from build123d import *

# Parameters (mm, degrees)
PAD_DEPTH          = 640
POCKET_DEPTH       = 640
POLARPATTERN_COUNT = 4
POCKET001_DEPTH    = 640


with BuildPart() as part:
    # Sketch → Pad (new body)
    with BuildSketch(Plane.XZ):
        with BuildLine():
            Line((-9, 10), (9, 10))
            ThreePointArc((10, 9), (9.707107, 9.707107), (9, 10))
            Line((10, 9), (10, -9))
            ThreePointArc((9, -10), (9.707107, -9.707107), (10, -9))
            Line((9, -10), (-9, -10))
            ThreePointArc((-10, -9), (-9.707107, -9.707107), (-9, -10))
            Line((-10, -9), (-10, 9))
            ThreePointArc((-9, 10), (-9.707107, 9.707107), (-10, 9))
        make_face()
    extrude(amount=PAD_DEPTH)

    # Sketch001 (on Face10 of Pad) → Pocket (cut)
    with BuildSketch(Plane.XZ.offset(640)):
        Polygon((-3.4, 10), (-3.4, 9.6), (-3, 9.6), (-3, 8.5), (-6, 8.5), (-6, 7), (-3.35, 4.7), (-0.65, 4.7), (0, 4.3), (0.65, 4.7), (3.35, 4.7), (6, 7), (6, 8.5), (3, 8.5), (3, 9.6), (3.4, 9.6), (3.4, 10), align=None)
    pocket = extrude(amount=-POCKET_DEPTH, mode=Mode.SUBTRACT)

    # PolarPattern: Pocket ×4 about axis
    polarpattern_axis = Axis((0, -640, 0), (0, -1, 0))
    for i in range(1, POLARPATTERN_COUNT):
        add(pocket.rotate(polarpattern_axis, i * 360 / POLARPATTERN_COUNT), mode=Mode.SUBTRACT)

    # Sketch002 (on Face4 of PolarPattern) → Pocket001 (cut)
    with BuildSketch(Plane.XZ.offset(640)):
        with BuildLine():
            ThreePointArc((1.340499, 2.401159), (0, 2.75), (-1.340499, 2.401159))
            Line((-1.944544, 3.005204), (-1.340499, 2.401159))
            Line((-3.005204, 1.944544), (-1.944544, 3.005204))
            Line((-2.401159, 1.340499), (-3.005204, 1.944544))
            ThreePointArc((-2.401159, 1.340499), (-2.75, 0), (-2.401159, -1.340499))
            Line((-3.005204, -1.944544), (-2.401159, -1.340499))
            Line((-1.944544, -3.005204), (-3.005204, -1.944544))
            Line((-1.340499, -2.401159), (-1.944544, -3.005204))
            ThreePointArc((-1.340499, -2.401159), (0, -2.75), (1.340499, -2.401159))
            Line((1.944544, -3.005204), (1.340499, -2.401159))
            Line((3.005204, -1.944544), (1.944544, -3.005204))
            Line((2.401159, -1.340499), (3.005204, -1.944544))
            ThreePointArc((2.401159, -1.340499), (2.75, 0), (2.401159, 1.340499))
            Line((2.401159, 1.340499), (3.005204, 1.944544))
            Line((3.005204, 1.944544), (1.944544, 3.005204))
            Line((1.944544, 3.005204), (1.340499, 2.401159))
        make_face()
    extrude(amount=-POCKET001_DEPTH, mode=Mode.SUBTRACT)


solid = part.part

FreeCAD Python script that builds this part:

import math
import FreeCAD as App
import Part
import Sketcher
from FreeCAD import Vector

doc = App.newDocument("Part")
params = doc.addObject("Spreadsheet::Sheet", "Params")
for row, (alias, value) in enumerate([
    ("sketch1_radius", "0.999999 mm"),
    ("sketch1_width", "18 mm"),
    ("pad1_length", "640 mm"),
    ("sketch2_width", "3 mm"),
    ("sketch2_width2", "0.4 mm"),
    ("sketch2_width3", "2.7 mm"),
    ("sketch2_width4", "6.8 mm"),
    ("sketch2_height", "1.1 mm"),
    ("pocket1_length", "640 mm"),
    ("sketch3_length", "1.5 mm"),
    ("pocket2_length", "640 mm"),
], start=1):
    params.set(f"A{row}", alias)
    params.set(f"B{row}", "=" + value)
    params.setAlias(f"B{row}", alias)

body = doc.addObject("PartDesign::Body", "Body")

sketch1 = body.newObject("Sketcher::SketchObject", "Sketch")
sketch1.AttachmentSupport = (doc.getObject("XZ_Plane"), [""])
sketch1.MapMode = "FlatFace"
sketch1.addGeometry([
    Part.LineSegment(Vector(9, 10, 0), Vector(-9, 10, 0)),
    Part.ArcOfCircle(Part.Circle(Vector(-9.000001, 9.000001, 0), Vector(0, 0, 1), 0.999999), math.radians(89.999957), math.radians(180.000043)),
    Part.LineSegment(Vector(-10, 9, 0), Vector(-10, -9, 0)),
    Part.ArcOfCircle(Part.Circle(Vector(-9.000001, -9.000001, 0), Vector(0, 0, 1), 0.999999), math.radians(179.999957), math.radians(270.000043)),
    Part.LineSegment(Vector(-9, -10, 0), Vector(9, -10, 0)),
    Part.ArcOfCircle(Part.Circle(Vector(9.000001, -9.000001, 0), Vector(0, 0, 1), 0.999999), math.radians(-90.000043), math.radians(0.000043)),
    Part.LineSegment(Vector(10, -9, 0), Vector(10, 9, 0)),
    Part.ArcOfCircle(Part.Circle(Vector(9.000001, 9.000001, 0), Vector(0, 0, 1), 0.999999), math.radians(-0.000043), math.radians(90.000043)),
], False)
sketch1.addConstraint([
    Sketcher.Constraint("Tangent", 0, 2, 1, 1),
    Sketcher.Constraint("Tangent", 1, 2, 2, 1),
    Sketcher.Constraint("Tangent", 2, 2, 3, 1),
    Sketcher.Constraint("Tangent", 3, 2, 4, 1),
    Sketcher.Constraint("Tangent", 4, 2, 5, 1),
    Sketcher.Constraint("Tangent", 5, 2, 6, 1),
    Sketcher.Constraint("Tangent", 6, 2, 7, 1),
    Sketcher.Constraint("Tangent", 7, 2, 0, 1),
    Sketcher.Constraint("Horizontal", 0),
    Sketcher.Constraint("Vertical", 2),
    Sketcher.Constraint("Horizontal", 4),
    Sketcher.Constraint("Vertical", 6),
    Sketcher.Constraint("Equal", 1, 3),
    Sketcher.Constraint("Equal", 3, 5),
    Sketcher.Constraint("Equal", 5, 7),
    Sketcher.Constraint("Symmetric", 1, 3, 5, 3, -1, 1),
    Sketcher.Constraint("Equal", 4, 2),
    Sketcher.Constraint("Radius", 1, 0.999999),
    Sketcher.Constraint("DistanceX", 0, 2, 0, 1, 18.0),
])
sketch1.setExpression("Constraints[17]", "Params.sketch1_radius")
sketch1.setExpression("Constraints[18]", "Params.sketch1_width")
pad1 = body.newObject("PartDesign::Pad", "Pad")
pad1.Profile = sketch1
pad1.setExpression("Length", "Params.pad1_length")

sketch2 = body.newObject("Sketcher::SketchObject", "Sketch001")
sketch2.AttachmentSupport = (doc.getObject("XZ_Plane"), [""])
sketch2.MapMode = "FlatFace"
sketch2.AttachmentOffset = App.Placement(Vector(0, 0, 640), App.Rotation())
sketch2.addGeometry([
    Part.LineSegment(Vector(-3.4, 10, 0), Vector(-3.4, 9.6, 0)),
    Part.LineSegment(Vector(-3.4, 9.6, 0), Vector(-3, 9.6, 0)),
    Part.LineSegment(Vector(-3, 9.6, 0), Vector(-3, 8.5, 0)),
    Part.LineSegment(Vector(-3, 8.5, 0), Vector(-6, 8.5, 0)),
    Part.LineSegment(Vector(-6, 8.5, 0), Vector(-6, 7, 0)),
    Part.LineSegment(Vector(-6, 7, 0), Vector(-3.35, 4.7, 0)),
    Part.LineSegment(Vector(-3.35, 4.7, 0), Vector(-0.65, 4.7, 0)),
    Part.LineSegment(Vector(-0.65, 4.7, 0), Vector(0, 4.3, 0)),
    Part.LineSegment(Vector(0, 4.3, 0), Vector(0.65, 4.7, 0)),
    Part.LineSegment(Vector(0.65, 4.7, 0), Vector(3.35, 4.7, 0)),
    Part.LineSegment(Vector(3.35, 4.7, 0), Vector(6, 7, 0)),
    Part.LineSegment(Vector(6, 7, 0), Vector(6, 8.5, 0)),
    Part.LineSegment(Vector(6, 8.5, 0), Vector(3, 8.5, 0)),
    Part.LineSegment(Vector(3, 8.5, 0), Vector(3, 9.6, 0)),
    Part.LineSegment(Vector(3, 9.6, 0), Vector(3.4, 9.6, 0)),
    Part.LineSegment(Vector(3.4, 9.6, 0), Vector(3.4, 10, 0)),
    Part.LineSegment(Vector(3.4, 10, 0), Vector(-3.4, 10, 0)),
], False)
sketch2.addConstraint([
    Sketcher.Constraint("Coincident", 0, 2, 1, 1),
    Sketcher.Constraint("Coincident", 1, 2, 2, 1),
    Sketcher.Constraint("Coincident", 2, 2, 3, 1),
    Sketcher.Constraint("Coincident", 3, 2, 4, 1),
    Sketcher.Constraint("Coincident", 4, 2, 5, 1),
    Sketcher.Constraint("Coincident", 5, 2, 6, 1),
    Sketcher.Constraint("Coincident", 6, 2, 7, 1),
    Sketcher.Constraint("Coincident", 7, 2, 8, 1),
    Sketcher.Constraint("Coincident", 8, 2, 9, 1),
    Sketcher.Constraint("Coincident", 9, 2, 10, 1),
    Sketcher.Constraint("Coincident", 10, 2, 11, 1),
    Sketcher.Constraint("Coincident", 11, 2, 12, 1),
    Sketcher.Constraint("Coincident", 12, 2, 13, 1),
    Sketcher.Constraint("Coincident", 13, 2, 14, 1),
    Sketcher.Constraint("Coincident", 14, 2, 15, 1),
    Sketcher.Constraint("Coincident", 15, 2, 16, 1),
    Sketcher.Constraint("Coincident", 16, 2, 0, 1),
    Sketcher.Constraint("Vertical", 0),
    Sketcher.Constraint("Horizontal", 1),
    Sketcher.Constraint("Vertical", 2),
    Sketcher.Constraint("Horizontal", 3),
    Sketcher.Constraint("Vertical", 4),
    Sketcher.Constraint("Horizontal", 6),
    Sketcher.Constraint("Horizontal", 9),
    Sketcher.Constraint("Vertical", 11),
    Sketcher.Constraint("Horizontal", 12),
    Sketcher.Constraint("Vertical", 13),
    Sketcher.Constraint("Horizontal", 14),
    Sketcher.Constraint("Vertical", 15),
    Sketcher.Constraint("Horizontal", 16),
    Sketcher.Constraint("Symmetric", 6, 2, 8, 2, -2),
    Sketcher.Constraint("Symmetric", 4, 2, 10, 2, -2),
    Sketcher.Constraint("Symmetric", 2, 2, 12, 2, -2),
    Sketcher.Constraint("Symmetric", 0, 2, 14, 2, -2),
    Sketcher.Constraint("PointOnObject", 7, 2, -2),
    Sketcher.Constraint("Equal", 6, 9),
    Sketcher.Constraint("Equal", 14, 0),
    Sketcher.Constraint("DistanceX", 3, 2, 3, 1, 3.0),
    Sketcher.Constraint("DistanceX", 1, 1, 1, 2, 0.4),
    Sketcher.Constraint("DistanceX", 6, 1, 6, 2, 2.7),
    Sketcher.Constraint("DistanceX", 16, 2, 16, 1, 6.8),
    Sketcher.Constraint("DistanceY", 2, 2, 2, 1, 1.1),
    Sketcher.Constraint("DistanceY", 4, 2, 4, 1, 1.5),
    Sketcher.Constraint("DistanceY", -1, 1, 4, 2, 7.0),
    Sketcher.Constraint("DistanceX", 5, 2, 8, 2, 4.0),
    Sketcher.Constraint("DistanceY", -1, 1, 5, 2, 4.7),
    Sketcher.Constraint("DistanceY", -1, 1, 7, 2, 4.3),
])
sketch2.setExpression("Constraints[37]", "Params.sketch2_width")
sketch2.setExpression("Constraints[38]", "Params.sketch2_width2")
sketch2.setExpression("Constraints[39]", "Params.sketch2_width3")
sketch2.setExpression("Constraints[40]", "Params.sketch2_width4")
sketch2.setExpression("Constraints[41]", "Params.sketch2_height")
pocket1 = body.newObject("PartDesign::Pocket", "Pocket")
pocket1.Profile = sketch2
pocket1.setExpression("Length", "Params.pocket1_length")
doc.recompute()

polarpattern = body.newObject("PartDesign::PolarPattern", "PolarPattern")
polarpattern.Originals = [pocket1]
polarpattern.Axis = (doc.getObject("Y_Axis"), [""])
polarpattern.Angle = 360
polarpattern.Occurrences = 4
body.Tip = polarpattern

sketch3 = body.newObject("Sketcher::SketchObject", "Sketch002")
sketch3.AttachmentSupport = (doc.getObject("XZ_Plane"), [""])
sketch3.MapMode = "FlatFace"
sketch3.AttachmentOffset = App.Placement(Vector(0, 0, 640), App.Rotation())
sketch3.addGeometry([
    Part.ArcOfCircle(Part.Circle(Vector(0, -0.000003, 0), Vector(0, 0, 1), 2.750003), math.radians(60.826646), math.radians(119.173354)),
    Part.LineSegment(Vector(-1.340499, 2.401159, 0), Vector(-1.944544, 3.005204, 0)),
    Part.LineSegment(Vector(-1.944544, 3.005204, 0), Vector(-3.005204, 1.944544, 0)),
    Part.LineSegment(Vector(-3.005204, 1.944544, 0), Vector(-2.401159, 1.340499, 0)),
    Part.ArcOfCircle(Part.Circle(Vector(0.000003, 0, 0), Vector(0, 0, 1), 2.750003), math.radians(150.826646), math.radians(209.173354)),
    Part.LineSegment(Vector(-2.401159, -1.340499, 0), Vector(-3.005204, -1.944544, 0)),
    Part.LineSegment(Vector(-3.005204, -1.944544, 0), Vector(-1.944544, -3.005204, 0)),
    Part.LineSegment(Vector(-1.944544, -3.005204, 0), Vector(-1.340499, -2.401159, 0)),
    Part.ArcOfCircle(Part.Circle(Vector(0, 0.000003, 0), Vector(0, 0, 1), 2.750003), math.radians(-119.173354), math.radians(-60.826646)),
    Part.LineSegment(Vector(1.340499, -2.401159, 0), Vector(1.944544, -3.005204, 0)),
    Part.LineSegment(Vector(1.944544, -3.005204, 0), Vector(3.005204, -1.944544, 0)),
    Part.LineSegment(Vector(3.005204, -1.944544, 0), Vector(2.401159, -1.340499, 0)),
    Part.ArcOfCircle(Part.Circle(Vector(-0.000003, 0, 0), Vector(0, 0, 1), 2.750003), math.radians(-29.173354), math.radians(29.173354)),
    Part.LineSegment(Vector(2.401159, 1.340499, 0), Vector(3.005204, 1.944544, 0)),
    Part.LineSegment(Vector(3.005204, 1.944544, 0), Vector(1.944544, 3.005204, 0)),
    Part.LineSegment(Vector(1.944544, 3.005204, 0), Vector(1.340499, 2.401159, 0)),
], False)
sketch3.addConstraint([
    Sketcher.Constraint("Coincident", 0, 2, 1, 1),
    Sketcher.Constraint("Coincident", 1, 2, 2, 1),
    Sketcher.Constraint("Coincident", 2, 2, 3, 1),
    Sketcher.Constraint("Coincident", 3, 2, 4, 1),
    Sketcher.Constraint("Coincident", 4, 2, 5, 1),
    Sketcher.Constraint("Coincident", 5, 2, 6, 1),
    Sketcher.Constraint("Coincident", 6, 2, 7, 1),
    Sketcher.Constraint("Coincident", 7, 2, 8, 1),
    Sketcher.Constraint("Coincident", 8, 2, 9, 1),
    Sketcher.Constraint("Coincident", 9, 2, 10, 1),
    Sketcher.Constraint("Coincident", 10, 2, 11, 1),
    Sketcher.Constraint("Coincident", 11, 2, 12, 1),
    Sketcher.Constraint("Coincident", 12, 2, 13, 1),
    Sketcher.Constraint("Coincident", 13, 2, 14, 1),
    Sketcher.Constraint("Coincident", 14, 2, 15, 1),
    Sketcher.Constraint("Coincident", 15, 2, 0, 1),
    Sketcher.Constraint("Coincident", 0, 3, -1, 1),
    Sketcher.Constraint("Coincident", 4, 3, -1, 1),
    Sketcher.Constraint("Coincident", 8, 3, -1, 1),
    Sketcher.Constraint("Coincident", 12, 3, -1, 1),
    Sketcher.Constraint("Equal", 0, 4),
    Sketcher.Constraint("Equal", 4, 8),
    Sketcher.Constraint("Equal", 8, 12),
    Sketcher.Constraint("Symmetric", 1, 2, 9, 2, -1, 1),
    Sketcher.Constraint("Symmetric", 2, 2, 10, 2, -1, 1),
    Sketcher.Constraint("Symmetric", 5, 2, 13, 2, -1, 1),
    Sketcher.Constraint("Symmetric", 6, 2, 14, 2, -1, 1),
    Sketcher.Constraint("Symmetric", 6, 2, 9, 2, -2),
    Sketcher.Constraint("Symmetric", 5, 2, 10, 2, -2),
    Sketcher.Constraint("Perpendicular", 1, 2),
    Sketcher.Constraint("Perpendicular", 2, 3),
    Sketcher.Constraint("Perpendicular", 3, 5),
    Sketcher.Constraint("Perpendicular", 5, 6),
    Sketcher.Constraint("Perpendicular", 6, 7),
    Sketcher.Constraint("Perpendicular", 7, 9),
    Sketcher.Constraint("Perpendicular", 10, 11),
    Sketcher.Constraint("Perpendicular", 11, 13),
    Sketcher.Constraint("Perpendicular", 14, 15),
    Sketcher.Constraint("Equal", 1, 3),
    Sketcher.Constraint("Distance", 2, 1.5),
    Sketcher.Constraint("Radius", 0, 2.750003),
    Sketcher.Constraint("DistanceY", 8, 3, 1, 2, 3.005201),
])
sketch3.setExpression("Constraints[39]", "Params.sketch3_length")
pocket2 = body.newObject("PartDesign::Pocket", "Pocket001")
pocket2.Profile = sketch3
pocket2.setExpression("Length", "Params.pocket2_length")

doc.recompute()
